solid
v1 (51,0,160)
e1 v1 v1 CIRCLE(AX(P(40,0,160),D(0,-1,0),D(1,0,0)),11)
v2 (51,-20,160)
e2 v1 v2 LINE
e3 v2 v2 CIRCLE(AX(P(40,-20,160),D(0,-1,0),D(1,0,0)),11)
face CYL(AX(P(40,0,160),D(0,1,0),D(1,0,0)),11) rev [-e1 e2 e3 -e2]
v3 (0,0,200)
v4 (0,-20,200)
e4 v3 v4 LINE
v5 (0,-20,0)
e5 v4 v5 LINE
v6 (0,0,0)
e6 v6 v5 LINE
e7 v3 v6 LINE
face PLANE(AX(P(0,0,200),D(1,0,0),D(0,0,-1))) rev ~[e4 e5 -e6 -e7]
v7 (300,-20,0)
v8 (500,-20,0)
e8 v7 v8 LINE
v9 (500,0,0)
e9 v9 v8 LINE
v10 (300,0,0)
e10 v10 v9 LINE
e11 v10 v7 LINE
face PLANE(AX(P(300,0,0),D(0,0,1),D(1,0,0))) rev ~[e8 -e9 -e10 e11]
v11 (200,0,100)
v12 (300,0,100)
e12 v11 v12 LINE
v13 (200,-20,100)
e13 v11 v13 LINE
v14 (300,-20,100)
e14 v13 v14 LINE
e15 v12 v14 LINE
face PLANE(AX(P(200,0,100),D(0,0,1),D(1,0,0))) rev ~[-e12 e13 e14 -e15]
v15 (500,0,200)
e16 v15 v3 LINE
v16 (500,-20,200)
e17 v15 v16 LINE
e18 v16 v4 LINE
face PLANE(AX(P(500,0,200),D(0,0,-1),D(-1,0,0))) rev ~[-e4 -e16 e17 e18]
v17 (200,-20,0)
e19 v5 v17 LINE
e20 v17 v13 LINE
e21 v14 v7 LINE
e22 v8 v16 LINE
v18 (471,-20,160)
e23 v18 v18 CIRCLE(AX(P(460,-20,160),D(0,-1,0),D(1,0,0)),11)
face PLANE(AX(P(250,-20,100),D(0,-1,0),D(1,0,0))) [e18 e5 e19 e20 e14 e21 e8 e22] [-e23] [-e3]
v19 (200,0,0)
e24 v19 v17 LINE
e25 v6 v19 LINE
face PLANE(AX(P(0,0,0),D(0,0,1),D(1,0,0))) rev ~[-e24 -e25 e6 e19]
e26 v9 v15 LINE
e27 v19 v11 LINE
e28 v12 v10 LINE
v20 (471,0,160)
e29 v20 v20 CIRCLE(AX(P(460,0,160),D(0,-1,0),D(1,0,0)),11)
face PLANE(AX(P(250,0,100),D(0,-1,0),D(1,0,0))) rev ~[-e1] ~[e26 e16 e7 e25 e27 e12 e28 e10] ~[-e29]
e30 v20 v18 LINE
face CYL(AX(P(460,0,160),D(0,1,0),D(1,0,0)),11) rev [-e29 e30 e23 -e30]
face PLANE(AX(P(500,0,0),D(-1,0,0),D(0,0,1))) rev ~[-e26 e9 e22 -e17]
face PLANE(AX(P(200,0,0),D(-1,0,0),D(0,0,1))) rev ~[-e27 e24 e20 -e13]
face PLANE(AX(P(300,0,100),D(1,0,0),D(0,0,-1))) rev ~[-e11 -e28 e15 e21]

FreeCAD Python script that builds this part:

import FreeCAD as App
import Part
import Sketcher

doc = App.newDocument("Part")
params = doc.addObject("Spreadsheet::Sheet", "Params")
for row, (alias, value) in enumerate([
    ("sketch1_diameter", "22 mm"),
    ("sketch1_width", "200 mm"),
    ("sketch1_width2", "100 mm"),
    ("pad1_length", "20 mm"),
], start=1):
    params.set(f"A{row}", alias)
    params.set(f"B{row}", "=" + value)
    params.setAlias(f"B{row}", alias)

body = doc.addObject("PartDesign::Body", "Body")

# Sketch on XZ plane
sketch1 = doc.addObject("Sketcher::SketchObject", "Sketch")
body.addObject(sketch1)
sketch1.AttachmentSupport = (doc.XZ_Plane, [""])
sketch1.MapMode = "FlatFace"
sketch1.addGeometry(Part.LineSegment(App.Vector(0, 200, 0), App.Vector(0, 0, 0)), False)
sketch1.addGeometry(Part.LineSegment(App.Vector(0, 0, 0), App.Vector(200, 0, 0)), False)
sketch1.addGeometry(Part.LineSegment(App.Vector(200, 0, 0), App.Vector(200, 100, 0)), False)
sketch1.addGeometry(Part.LineSegment(App.Vector(200, 100, 0), App.Vector(300, 100, 0)), False)
sketch1.addGeometry(Part.LineSegment(App.Vector(300, 100, 0), App.Vector(300, 0, 0)), False)
sketch1.addGeometry(Part.LineSegment(App.Vector(300, 0, 0), App.Vector(500, 0, 0)), False)
sketch1.addGeometry(Part.LineSegment(App.Vector(500, 0, 0), App.Vector(500, 200, 0)), False)
sketch1.addGeometry(Part.LineSegment(App.Vector(500, 200, 0), App.Vector(0, 200, 0)), False)
sketch1.addGeometry(Part.Circle(App.Vector(40, 160, 0), App.Vector(0, 0, 1), 11), False)
sketch1.addGeometry(Part.Circle(App.Vector(460, 160, 0), App.Vector(0, 0, 1), 11), False)
sketch1.addConstraint(Sketcher.Constraint("Coincident", 0, 2, 1, 1))
sketch1.addConstraint(Sketcher.Constraint("Coincident", 1, 2, 2, 1))
sketch1.addConstraint(Sketcher.Constraint("Coincident", 2, 2, 3, 1))
sketch1.addConstraint(Sketcher.Constraint("Coincident", 3, 2, 4, 1))
sketch1.addConstraint(Sketcher.Constraint("Coincident", 4, 2, 5, 1))
sketch1.addConstraint(Sketcher.Constraint("Coincident", 5, 2, 6, 1))
sketch1.addConstraint(Sketcher.Constraint("Coincident", 6, 2, 7, 1))
sketch1.addConstraint(Sketcher.Constraint("Coincident", 7, 2, 0, 1))
sketch1.addConstraint(Sketcher.Constraint("Vertical", 0))
sketch1.addConstraint(Sketcher.Constraint("Horizontal", 1))
sketch1.addConstraint(Sketcher.Constraint("Vertical", 2))
sketch1.addConstraint(Sketcher.Constraint("Horizontal", 3))
sketch1.addConstraint(Sketcher.Constraint("Vertical", 4))
sketch1.addConstraint(Sketcher.Constraint("Horizontal", 5))
sketch1.addConstraint(Sketcher.Constraint("Vertical", 6))
sketch1.addConstraint(Sketcher.Constraint("Horizontal", 7))
sketch1.addConstraint(Sketcher.Constraint("Coincident", 0, 2, -1, 1))
sketch1.addConstraint(Sketcher.Constraint("Equal", 8, 9))
sketch1.addConstraint(Sketcher.Constraint("PointOnObject", 4, 2, -1))
sketch1.addConstraint(Sketcher.Constraint("Horizontal", 8, 3, 9, 3))
sketch1.addConstraint(Sketcher.Constraint("Equal", 1, 5))
sketch1.addConstraint(Sketcher.Constraint("Equal", 5, 0))
sketch1.addConstraint(Sketcher.Constraint("Equal", 3, 2))
sketch1.addConstraint(Sketcher.Constraint("Diameter", 8, 22.0))
sketch1.addConstraint(Sketcher.Constraint("DistanceX", 1, 1, 1, 2, 200.0))
sketch1.addConstraint(Sketcher.Constraint("DistanceX", 3, 1, 3, 2, 100.0))
sketch1.addConstraint(Sketcher.Constraint("DistanceX", -1, 1, 8, 3, 40.0))
sketch1.addConstraint(Sketcher.Constraint("DistanceY", -1, 1, 8, 3, 160.0))
sketch1.addConstraint(Sketcher.Constraint("DistanceX", -1, 1, 9, 3, 460.0))
sketch1.setExpression("Constraints[23]", "Params.sketch1_diameter")
sketch1.setExpression("Constraints[24]", "Params.sketch1_width")
sketch1.setExpression("Constraints[25]", "Params.sketch1_width2")
pad1 = doc.addObject("PartDesign::Pad", "Pad")
body.addObject(pad1)
pad1.Profile = sketch1
pad1.setExpression("Length", "Params.pad1_length")

doc.recompute()
